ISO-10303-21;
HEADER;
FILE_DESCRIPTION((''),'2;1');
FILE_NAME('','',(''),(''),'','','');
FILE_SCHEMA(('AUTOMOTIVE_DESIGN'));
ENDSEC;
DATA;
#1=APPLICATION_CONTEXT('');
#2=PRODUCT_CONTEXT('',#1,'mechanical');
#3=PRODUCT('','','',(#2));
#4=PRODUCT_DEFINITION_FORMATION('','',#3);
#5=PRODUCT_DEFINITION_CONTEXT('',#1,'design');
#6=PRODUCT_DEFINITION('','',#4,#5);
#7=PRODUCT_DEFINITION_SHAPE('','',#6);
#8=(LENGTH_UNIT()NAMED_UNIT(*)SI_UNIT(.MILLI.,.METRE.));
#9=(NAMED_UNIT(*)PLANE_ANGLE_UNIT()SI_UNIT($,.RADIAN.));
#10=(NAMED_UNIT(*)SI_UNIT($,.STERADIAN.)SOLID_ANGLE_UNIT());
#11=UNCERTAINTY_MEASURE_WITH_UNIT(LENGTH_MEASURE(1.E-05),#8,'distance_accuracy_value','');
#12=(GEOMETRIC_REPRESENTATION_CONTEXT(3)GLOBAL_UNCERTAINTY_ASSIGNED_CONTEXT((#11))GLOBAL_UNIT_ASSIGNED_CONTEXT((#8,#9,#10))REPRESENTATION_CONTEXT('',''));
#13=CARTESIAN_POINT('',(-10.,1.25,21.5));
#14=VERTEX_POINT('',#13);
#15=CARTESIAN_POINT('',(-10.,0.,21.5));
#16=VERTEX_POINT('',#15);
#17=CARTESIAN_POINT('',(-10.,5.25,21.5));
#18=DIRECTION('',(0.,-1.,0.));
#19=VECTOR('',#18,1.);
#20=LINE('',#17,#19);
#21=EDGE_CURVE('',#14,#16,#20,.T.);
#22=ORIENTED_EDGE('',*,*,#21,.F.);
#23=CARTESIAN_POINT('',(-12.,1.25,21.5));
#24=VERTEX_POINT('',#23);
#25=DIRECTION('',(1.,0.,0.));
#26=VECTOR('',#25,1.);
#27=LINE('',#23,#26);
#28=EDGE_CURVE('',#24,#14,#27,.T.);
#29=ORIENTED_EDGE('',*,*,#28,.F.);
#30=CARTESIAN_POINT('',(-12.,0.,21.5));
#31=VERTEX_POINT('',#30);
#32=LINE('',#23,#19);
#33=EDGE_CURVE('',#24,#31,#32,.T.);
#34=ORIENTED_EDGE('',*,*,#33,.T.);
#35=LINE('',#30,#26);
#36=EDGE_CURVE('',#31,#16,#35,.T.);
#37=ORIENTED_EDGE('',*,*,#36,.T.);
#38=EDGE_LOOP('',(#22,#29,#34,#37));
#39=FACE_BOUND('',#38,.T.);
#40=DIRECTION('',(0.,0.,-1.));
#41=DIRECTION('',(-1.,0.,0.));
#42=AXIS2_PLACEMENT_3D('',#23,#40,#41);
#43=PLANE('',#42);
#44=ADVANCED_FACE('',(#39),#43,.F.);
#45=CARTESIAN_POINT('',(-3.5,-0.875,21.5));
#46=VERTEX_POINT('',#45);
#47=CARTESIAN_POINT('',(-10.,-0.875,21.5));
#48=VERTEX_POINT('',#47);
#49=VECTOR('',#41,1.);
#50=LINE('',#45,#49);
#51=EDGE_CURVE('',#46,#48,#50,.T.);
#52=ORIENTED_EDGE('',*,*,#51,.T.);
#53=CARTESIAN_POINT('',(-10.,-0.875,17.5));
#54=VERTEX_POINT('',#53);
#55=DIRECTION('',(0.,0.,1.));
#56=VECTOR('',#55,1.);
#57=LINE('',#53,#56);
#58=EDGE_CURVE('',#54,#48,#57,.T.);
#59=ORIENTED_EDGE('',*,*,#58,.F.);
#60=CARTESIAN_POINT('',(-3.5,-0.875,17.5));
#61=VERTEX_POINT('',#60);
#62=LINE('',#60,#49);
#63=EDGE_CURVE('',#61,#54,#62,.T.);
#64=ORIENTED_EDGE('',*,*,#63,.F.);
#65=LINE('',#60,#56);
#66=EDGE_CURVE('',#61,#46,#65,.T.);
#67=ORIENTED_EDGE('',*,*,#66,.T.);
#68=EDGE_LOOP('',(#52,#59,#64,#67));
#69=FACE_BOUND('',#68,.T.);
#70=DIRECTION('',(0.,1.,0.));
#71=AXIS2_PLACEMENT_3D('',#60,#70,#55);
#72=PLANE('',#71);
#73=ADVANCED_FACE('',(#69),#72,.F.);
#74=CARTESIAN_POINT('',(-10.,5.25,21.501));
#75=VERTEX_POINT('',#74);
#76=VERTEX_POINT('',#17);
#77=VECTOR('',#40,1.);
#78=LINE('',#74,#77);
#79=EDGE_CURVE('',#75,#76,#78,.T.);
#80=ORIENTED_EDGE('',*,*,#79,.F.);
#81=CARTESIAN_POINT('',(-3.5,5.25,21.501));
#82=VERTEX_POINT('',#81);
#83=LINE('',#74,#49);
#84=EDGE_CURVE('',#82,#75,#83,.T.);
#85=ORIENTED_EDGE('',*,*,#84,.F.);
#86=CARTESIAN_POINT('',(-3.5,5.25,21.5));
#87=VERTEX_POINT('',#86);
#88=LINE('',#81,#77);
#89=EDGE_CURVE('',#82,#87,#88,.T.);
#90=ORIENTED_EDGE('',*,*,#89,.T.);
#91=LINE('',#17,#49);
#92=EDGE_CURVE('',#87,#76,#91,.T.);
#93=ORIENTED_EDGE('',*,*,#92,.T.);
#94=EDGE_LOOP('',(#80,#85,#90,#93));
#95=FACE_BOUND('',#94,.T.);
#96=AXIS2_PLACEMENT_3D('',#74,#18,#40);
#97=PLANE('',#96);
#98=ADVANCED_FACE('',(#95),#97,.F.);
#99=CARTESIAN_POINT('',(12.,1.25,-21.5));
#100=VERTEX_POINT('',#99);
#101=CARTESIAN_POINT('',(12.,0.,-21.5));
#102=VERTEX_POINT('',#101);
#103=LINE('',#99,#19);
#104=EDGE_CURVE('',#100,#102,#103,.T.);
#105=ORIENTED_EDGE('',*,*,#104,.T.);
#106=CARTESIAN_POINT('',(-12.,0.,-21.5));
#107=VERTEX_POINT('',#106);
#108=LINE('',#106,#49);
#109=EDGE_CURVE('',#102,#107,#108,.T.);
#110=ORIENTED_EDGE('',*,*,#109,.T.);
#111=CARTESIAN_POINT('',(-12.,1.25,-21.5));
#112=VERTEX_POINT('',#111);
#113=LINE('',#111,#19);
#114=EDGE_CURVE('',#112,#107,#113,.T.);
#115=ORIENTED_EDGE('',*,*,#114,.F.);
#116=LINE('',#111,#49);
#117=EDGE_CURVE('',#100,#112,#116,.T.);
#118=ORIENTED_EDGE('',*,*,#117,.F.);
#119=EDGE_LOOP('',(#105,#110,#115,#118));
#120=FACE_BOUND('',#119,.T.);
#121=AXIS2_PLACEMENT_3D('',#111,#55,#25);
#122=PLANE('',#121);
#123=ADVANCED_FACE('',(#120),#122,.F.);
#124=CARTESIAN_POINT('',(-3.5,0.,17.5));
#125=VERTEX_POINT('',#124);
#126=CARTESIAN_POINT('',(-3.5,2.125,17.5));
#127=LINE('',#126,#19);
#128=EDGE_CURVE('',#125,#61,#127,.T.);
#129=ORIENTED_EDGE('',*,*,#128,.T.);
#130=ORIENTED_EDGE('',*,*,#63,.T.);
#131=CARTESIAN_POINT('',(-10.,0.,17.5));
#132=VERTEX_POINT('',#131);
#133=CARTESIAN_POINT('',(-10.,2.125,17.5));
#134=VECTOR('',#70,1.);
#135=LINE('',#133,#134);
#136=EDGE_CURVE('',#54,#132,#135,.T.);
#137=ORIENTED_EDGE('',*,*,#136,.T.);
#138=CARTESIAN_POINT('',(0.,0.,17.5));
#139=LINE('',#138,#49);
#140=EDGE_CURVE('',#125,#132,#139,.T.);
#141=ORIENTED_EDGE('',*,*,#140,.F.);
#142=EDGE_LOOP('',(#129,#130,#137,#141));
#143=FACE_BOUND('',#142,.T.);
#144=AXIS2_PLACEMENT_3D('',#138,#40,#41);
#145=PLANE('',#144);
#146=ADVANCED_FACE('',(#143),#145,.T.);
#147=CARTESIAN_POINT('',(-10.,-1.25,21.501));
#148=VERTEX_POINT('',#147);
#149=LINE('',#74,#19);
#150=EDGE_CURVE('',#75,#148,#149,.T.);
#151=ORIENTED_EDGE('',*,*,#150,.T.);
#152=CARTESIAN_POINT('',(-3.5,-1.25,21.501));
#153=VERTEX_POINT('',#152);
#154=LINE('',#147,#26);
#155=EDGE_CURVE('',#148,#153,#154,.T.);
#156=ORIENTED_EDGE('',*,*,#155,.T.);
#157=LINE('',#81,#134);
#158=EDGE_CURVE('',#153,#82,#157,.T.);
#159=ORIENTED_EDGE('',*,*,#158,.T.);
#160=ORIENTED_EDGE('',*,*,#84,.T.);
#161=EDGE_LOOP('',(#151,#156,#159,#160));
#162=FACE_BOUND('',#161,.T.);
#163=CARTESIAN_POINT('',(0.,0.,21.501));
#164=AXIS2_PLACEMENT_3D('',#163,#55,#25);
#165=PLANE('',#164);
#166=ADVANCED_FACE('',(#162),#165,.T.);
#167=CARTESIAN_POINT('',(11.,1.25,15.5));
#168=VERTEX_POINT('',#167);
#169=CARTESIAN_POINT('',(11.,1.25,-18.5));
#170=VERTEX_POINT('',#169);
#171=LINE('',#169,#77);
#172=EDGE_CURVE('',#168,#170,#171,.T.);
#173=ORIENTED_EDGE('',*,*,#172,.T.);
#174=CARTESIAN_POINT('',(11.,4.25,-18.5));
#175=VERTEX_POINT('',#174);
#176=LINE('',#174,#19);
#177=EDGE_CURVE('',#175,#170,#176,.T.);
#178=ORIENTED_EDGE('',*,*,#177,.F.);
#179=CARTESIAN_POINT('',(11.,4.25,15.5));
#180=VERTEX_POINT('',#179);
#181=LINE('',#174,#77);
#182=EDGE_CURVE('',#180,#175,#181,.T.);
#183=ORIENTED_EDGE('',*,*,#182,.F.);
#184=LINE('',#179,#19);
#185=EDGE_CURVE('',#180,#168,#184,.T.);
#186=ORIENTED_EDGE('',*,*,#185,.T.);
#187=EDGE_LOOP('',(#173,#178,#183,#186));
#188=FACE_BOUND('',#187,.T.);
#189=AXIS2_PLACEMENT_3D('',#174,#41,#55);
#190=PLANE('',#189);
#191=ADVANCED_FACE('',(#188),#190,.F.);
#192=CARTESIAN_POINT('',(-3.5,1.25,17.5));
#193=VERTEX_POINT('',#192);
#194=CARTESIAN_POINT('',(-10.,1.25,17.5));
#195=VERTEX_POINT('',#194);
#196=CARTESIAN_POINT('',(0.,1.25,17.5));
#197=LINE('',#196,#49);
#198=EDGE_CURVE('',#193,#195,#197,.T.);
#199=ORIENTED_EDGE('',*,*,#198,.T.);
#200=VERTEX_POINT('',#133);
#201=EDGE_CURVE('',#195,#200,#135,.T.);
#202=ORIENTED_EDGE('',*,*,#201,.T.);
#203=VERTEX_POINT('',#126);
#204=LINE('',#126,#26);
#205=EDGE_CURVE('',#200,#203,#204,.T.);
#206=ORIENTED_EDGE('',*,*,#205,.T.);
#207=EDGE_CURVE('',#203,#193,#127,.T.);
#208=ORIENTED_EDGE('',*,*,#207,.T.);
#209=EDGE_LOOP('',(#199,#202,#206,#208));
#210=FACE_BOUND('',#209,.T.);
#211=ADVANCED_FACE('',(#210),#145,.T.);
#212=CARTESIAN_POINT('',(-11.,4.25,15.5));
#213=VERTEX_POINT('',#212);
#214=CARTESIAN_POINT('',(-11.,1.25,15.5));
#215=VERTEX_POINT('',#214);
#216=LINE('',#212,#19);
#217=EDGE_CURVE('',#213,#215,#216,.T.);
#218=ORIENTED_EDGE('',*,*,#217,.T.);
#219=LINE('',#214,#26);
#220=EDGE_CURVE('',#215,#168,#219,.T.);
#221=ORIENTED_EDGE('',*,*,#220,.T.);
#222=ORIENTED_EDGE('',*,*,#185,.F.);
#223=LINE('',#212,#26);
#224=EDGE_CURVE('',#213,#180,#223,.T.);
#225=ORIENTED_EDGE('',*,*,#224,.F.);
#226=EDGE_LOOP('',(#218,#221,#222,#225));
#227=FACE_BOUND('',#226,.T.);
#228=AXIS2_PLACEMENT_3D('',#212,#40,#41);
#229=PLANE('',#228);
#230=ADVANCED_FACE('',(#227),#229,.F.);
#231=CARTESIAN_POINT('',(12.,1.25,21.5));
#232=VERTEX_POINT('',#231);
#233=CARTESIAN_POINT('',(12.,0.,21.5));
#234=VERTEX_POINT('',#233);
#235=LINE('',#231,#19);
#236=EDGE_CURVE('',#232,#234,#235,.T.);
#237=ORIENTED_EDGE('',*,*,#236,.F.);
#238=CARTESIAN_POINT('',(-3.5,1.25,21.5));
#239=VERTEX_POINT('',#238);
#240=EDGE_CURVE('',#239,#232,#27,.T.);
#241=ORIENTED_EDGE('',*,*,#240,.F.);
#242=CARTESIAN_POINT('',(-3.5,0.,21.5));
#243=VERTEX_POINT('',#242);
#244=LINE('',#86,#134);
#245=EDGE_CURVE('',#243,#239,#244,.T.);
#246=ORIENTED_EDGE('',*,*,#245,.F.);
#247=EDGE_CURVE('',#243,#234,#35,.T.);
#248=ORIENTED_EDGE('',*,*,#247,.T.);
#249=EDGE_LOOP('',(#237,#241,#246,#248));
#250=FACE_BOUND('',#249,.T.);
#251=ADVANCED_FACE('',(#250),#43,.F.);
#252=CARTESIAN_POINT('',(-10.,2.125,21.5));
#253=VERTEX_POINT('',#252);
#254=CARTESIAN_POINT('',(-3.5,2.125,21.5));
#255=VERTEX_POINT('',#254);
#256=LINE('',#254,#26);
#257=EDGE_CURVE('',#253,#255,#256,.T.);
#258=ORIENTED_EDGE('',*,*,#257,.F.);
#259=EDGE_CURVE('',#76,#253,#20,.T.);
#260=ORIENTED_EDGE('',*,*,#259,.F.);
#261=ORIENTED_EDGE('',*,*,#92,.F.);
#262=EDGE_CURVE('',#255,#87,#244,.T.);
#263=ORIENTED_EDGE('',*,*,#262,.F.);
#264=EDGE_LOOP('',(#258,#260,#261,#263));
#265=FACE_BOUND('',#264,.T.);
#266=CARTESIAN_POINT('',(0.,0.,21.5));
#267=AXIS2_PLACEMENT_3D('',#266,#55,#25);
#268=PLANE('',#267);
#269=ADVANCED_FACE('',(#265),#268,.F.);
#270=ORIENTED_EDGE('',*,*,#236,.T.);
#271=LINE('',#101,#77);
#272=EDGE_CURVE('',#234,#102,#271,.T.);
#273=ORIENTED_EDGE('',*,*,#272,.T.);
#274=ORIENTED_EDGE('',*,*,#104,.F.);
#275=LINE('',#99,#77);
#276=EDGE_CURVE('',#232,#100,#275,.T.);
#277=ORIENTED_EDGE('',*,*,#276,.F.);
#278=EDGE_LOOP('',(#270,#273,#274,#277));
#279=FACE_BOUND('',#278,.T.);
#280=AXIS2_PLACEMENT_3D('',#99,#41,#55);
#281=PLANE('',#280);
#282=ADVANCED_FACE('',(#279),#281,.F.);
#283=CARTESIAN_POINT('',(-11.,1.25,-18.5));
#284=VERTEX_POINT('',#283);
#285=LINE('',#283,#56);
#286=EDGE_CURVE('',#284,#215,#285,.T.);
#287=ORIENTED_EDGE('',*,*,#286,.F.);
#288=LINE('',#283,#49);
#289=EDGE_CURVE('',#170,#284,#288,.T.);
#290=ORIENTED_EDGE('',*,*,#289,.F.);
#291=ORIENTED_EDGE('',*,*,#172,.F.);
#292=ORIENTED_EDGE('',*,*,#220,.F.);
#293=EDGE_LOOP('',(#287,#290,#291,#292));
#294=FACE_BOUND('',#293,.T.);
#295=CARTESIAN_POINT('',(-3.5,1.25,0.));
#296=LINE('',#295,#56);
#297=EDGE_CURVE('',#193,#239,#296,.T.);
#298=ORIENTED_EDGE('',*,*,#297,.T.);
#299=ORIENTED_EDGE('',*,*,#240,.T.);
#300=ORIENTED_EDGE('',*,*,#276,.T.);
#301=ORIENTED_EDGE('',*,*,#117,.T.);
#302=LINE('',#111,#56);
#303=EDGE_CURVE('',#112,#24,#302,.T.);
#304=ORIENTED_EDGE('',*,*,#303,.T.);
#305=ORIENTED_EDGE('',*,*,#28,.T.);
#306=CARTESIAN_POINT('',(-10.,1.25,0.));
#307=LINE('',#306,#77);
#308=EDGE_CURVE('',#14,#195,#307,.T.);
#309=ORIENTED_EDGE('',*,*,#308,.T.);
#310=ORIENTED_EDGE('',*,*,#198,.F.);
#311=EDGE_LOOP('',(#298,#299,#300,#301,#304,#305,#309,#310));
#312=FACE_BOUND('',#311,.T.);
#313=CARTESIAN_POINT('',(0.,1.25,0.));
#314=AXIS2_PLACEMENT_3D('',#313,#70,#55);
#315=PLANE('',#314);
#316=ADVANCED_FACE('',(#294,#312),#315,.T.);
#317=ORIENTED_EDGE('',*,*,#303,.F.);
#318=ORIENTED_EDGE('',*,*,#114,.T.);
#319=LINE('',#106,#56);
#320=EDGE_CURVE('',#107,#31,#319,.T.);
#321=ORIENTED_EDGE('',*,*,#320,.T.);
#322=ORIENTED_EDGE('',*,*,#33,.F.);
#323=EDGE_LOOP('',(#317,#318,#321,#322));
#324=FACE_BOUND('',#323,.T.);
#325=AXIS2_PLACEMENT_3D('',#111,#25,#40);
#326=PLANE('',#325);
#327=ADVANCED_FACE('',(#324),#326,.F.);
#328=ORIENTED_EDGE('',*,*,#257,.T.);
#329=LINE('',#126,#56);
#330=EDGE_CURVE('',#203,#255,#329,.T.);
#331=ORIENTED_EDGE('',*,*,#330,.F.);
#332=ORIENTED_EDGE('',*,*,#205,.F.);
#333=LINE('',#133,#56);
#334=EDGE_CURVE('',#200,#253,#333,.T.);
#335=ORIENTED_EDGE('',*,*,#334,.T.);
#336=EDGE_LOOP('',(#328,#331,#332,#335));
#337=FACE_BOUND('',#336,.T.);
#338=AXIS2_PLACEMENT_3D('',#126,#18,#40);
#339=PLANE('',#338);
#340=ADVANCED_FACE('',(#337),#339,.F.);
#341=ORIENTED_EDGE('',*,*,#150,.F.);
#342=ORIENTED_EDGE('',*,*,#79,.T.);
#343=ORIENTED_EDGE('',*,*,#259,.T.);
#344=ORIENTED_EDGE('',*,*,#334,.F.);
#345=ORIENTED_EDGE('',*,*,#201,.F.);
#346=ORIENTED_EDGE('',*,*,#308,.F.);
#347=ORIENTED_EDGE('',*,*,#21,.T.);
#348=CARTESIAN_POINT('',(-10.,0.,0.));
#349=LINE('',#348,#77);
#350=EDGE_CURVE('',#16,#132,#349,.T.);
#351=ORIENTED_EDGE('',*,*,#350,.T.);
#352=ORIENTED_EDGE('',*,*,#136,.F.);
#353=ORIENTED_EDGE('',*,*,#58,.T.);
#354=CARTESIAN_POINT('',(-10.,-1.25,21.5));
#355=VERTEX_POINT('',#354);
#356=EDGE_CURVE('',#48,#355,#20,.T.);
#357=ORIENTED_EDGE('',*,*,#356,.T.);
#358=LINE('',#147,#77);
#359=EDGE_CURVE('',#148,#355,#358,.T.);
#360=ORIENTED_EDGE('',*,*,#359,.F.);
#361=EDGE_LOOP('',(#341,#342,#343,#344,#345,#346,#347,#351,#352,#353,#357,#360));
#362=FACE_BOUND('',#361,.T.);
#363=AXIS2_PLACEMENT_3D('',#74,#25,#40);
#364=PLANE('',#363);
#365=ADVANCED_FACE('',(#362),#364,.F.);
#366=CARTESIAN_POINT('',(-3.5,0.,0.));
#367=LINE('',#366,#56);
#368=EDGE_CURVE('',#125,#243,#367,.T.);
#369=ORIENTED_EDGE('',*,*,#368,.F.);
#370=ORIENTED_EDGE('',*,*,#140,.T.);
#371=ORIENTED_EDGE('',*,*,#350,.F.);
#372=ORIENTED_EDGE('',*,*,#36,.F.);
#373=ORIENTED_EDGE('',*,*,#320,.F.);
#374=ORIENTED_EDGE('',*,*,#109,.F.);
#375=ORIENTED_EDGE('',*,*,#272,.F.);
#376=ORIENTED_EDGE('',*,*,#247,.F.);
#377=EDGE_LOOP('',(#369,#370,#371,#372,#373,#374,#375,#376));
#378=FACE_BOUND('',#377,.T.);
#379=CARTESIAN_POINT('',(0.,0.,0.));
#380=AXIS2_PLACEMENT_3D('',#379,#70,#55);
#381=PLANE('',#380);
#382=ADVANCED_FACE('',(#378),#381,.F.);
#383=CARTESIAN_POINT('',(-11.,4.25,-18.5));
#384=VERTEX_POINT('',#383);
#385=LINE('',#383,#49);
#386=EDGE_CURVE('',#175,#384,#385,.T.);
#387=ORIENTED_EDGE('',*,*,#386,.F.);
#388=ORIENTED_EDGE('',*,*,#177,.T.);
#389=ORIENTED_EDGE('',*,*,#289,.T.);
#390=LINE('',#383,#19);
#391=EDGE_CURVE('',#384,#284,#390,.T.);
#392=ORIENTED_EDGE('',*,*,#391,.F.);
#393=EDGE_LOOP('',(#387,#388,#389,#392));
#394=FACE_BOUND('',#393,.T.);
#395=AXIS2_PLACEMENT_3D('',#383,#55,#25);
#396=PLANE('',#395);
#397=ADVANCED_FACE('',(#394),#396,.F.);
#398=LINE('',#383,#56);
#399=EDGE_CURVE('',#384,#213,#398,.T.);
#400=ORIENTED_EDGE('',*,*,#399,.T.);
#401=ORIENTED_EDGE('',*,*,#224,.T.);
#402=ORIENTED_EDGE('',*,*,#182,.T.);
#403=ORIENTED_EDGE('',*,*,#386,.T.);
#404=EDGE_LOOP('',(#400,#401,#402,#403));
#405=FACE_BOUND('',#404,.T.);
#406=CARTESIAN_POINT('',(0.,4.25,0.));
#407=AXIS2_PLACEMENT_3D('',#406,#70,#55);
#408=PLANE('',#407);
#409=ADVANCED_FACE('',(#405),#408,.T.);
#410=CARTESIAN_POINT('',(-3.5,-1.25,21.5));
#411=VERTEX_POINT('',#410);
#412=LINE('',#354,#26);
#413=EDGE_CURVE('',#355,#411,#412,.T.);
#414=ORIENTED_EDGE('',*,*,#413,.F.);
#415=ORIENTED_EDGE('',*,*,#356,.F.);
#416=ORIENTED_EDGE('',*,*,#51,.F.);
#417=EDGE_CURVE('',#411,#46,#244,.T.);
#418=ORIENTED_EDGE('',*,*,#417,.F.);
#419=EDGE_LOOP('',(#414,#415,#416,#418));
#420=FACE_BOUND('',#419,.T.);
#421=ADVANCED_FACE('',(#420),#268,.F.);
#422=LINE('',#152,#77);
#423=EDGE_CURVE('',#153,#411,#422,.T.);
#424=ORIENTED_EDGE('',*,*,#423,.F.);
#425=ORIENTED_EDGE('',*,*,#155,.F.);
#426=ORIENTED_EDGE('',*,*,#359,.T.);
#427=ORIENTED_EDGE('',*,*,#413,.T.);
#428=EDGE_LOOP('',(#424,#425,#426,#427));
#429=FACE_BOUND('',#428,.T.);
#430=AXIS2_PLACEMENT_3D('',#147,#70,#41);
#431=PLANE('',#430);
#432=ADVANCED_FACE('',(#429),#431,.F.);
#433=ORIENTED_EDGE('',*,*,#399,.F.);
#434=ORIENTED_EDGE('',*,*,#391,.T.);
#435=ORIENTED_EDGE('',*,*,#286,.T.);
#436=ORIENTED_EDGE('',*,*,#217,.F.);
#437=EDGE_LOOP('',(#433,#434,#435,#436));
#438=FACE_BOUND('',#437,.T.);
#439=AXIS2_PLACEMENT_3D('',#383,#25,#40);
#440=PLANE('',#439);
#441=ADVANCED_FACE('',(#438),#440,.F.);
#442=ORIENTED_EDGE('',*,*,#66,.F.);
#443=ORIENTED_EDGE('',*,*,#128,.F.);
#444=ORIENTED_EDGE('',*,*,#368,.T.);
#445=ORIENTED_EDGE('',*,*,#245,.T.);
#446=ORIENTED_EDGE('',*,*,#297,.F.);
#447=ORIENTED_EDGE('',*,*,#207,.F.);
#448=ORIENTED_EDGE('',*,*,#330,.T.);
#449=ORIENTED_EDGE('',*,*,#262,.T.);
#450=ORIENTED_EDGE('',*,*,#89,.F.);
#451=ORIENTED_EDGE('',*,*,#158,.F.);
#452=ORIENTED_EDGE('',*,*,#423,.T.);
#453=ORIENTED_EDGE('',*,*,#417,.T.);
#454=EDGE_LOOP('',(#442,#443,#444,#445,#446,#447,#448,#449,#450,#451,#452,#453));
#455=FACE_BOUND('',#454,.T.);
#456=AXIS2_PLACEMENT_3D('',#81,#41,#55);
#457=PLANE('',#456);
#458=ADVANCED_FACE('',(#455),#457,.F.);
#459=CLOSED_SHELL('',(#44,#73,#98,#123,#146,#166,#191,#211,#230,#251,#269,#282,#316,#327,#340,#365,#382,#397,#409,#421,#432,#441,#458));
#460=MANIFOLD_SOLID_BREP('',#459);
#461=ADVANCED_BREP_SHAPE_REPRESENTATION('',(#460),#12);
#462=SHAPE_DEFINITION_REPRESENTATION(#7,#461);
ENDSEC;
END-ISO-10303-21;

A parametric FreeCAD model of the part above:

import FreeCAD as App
import Part
import Sketcher
Q = App.Units.Quantity


def add_polygon(sketch, points):
    """Adds a closed chain of lines whose ends are joined by coincident constraints."""
    first, n = sketch.GeometryCount, len(points)
    for a, b in zip(points, points[1:] + points[:1]):
        sketch.addGeometry(Part.LineSegment(App.Vector(*a, 0), App.Vector(*b, 0)), False)
    for i in range(n):
        sketch.addConstraint(Sketcher.Constraint("Coincident", first + i, 2, first + (i + 1) % n, 1))

doc = App.newDocument("Part")
params = doc.addObject("Spreadsheet::Sheet", "Params")
for row, (alias, value) in enumerate([
    ("sketch1_width", "24 mm"),
    ("sketch1_height", "43 mm"),
    ("pad1_length", "1.25 mm"),
    ("sketch2_width", "22 mm"),
    ("sketch2_height", "34 mm"),
    ("pad2_length", "3 mm"),
    ("sketch3_width", "6.5 mm"),
    ("pad3_length", "0.001 mm"),
    ("sketch4_height", "3 mm"),
    ("sketch4_width", "6.5 mm"),
    ("pad4_length", "4 mm"),
], start=1):
    params.set(f"A{row}", alias)
    params.set(f"B{row}", "=" + value)
    params.setAlias(f"B{row}", alias)

body = doc.addObject("PartDesign::Body", "Body")

# Sketch on XZ plane
sketch1 = body.newObject("Sketcher::SketchObject", "Sketch")
sketch1.AttachmentSupport = (doc.getObject("XZ_Plane"), [""])
sketch1.MapMode = "FlatFace"
add_polygon(sketch1, [(-12, -22), (-12, 22), (12, 22), (12, -22)])  # lines 0-3
sketch1.addConstraint([
    Sketcher.Constraint("Vertical", 0),
    Sketcher.Constraint("Horizontal", 1),
    Sketcher.Constraint("Vertical", 2),
    Sketcher.Constraint("Horizontal", 3),
    Sketcher.Constraint("Symmetric", 0, 2, 2, 2, -1, 1),
    Sketcher.Constraint("DistanceX", 1, 1, 1, 2, Q("24 mm")),
    Sketcher.Constraint("DistanceY", 0, 1, 0, 2, Q("43 mm")),
])
sketch1.setExpression("Constraints[9]", "Params.sketch1_width")
sketch1.setExpression("Constraints[10]", "Params.sketch1_height")
pad1 = body.newObject("PartDesign::Pad", "Pad")
pad1.Profile = sketch1
pad1.setExpression("Length", "Params.pad1_length")
pad1.Reversed = True

# Sketch on XZ plane
sketch2 = body.newObject("Sketcher::SketchObject", "Sketch001")
sketch2.AttachmentSupport = (doc.getObject("XZ_Plane"), [""])
sketch2.MapMode = "FlatFace"
sketch2.AttachmentOffset = App.Placement(App.Vector(0, 0, -1.25), App.Rotation())
add_polygon(sketch2, [(-11, -18), (-11, 16), (11, 16), (11, -18)])  # lines 0-3
sketch2.addConstraint([
    Sketcher.Constraint("Vertical", 0),
    Sketcher.Constraint("Horizontal", 1),
    Sketcher.Constraint("Vertical", 2),
    Sketcher.Constraint("Horizontal", 3),
    Sketcher.Constraint("DistanceX", 1, 1, 1, 2, Q("22 mm")),
    Sketcher.Constraint("DistanceY", 0, 1, 0, 2, Q("34 mm")),
    Sketcher.Constraint("DistanceX", 0, 2, -1, 1, Q("11 mm")),
    Sketcher.Constraint("DistanceY", -1, 1, 0, 2, Q("15.5 mm")),
])
sketch2.setExpression("Constraints[8]", "Params.sketch2_width")
sketch2.setExpression("Constraints[9]", "Params.sketch2_height")
pad2 = body.newObject("PartDesign::Pad", "Pad001")
pad2.Profile = sketch2
pad2.setExpression("Length", "Params.pad2_length")
pad2.Reversed = True

# Sketch on XY plane
sketch3 = body.newObject("Sketcher::SketchObject", "Sketch002")
sketch3.AttachmentSupport = (doc.getObject("XY_Plane"), [""])
sketch3.MapMode = "FlatFace"
sketch3.AttachmentOffset = App.Placement(App.Vector(0, 0, 21.5), App.Rotation())
add_polygon(sketch3, [(-10, 5), (-10, -1), (-4, -1), (-4, 5)])  # lines 0-3
sketch3.addConstraint([
    Sketcher.Constraint("Vertical", 0),
    Sketcher.Constraint("Horizontal", 1),
    Sketcher.Constraint("Vertical", 2),
    Sketcher.Constraint("Horizontal", 3),
    Sketcher.Constraint("Equal", 3, 0),
    Sketcher.Constraint("DistanceX", 1, 1, 1, 2, Q("6.5 mm")),
    Sketcher.Constraint("DistanceX", 0, 2, -1, 1, Q("10 mm")),
    Sketcher.Constraint("DistanceY", 0, 2, -1, 1, Q("1.25 mm")),
])
sketch3.setExpression("Constraints[9]", "Params.sketch3_width")
pad3 = body.newObject("PartDesign::Pad", "Pad002")
pad3.Profile = sketch3
pad3.setExpression("Length", "Params.pad3_length")

# Sketch on XY plane
sketch4 = body.newObject("Sketcher::SketchObject", "Sketch003")
sketch4.AttachmentSupport = (doc.getObject("XY_Plane"), [""])
sketch4.MapMode = "FlatFace"
sketch4.AttachmentOffset = App.Placement(App.Vector(0, 0, 21.5), App.Rotation())
add_polygon(sketch4, [(-3.5, 2.1), (-3.5, -0.9), (-10, -0.9), (-10, 2.1)])  # lines 0-3
sketch4.addConstraint([
    Sketcher.Constraint("Vertical", 0),
    Sketcher.Constraint("Horizontal", 1),
    Sketcher.Constraint("Vertical", 2),
    Sketcher.Constraint("Horizontal", 3),
    Sketcher.Constraint("DistanceY", 0, 2, 0, 1, Q("3 mm")),
    Sketcher.Constraint("DistanceX", 1, 2, 1, 1, Q("6.5 mm")),
    Sketcher.Constraint("DistanceX", 1, 2, -1, 1, Q("10 mm")),
    Sketcher.Constraint("DistanceY", 0, 2, -1, 1, Q("0.875 mm")),
])
sketch4.setExpression("Constraints[8]", "Params.sketch4_height")
sketch4.setExpression("Constraints[9]", "Params.sketch4_width")
pad4 = body.newObject("PartDesign::Pad", "Pad003")
pad4.Profile = sketch4
pad4.setExpression("Length", "Params.pad4_length")
pad4.Reversed = True

doc.recompute()
